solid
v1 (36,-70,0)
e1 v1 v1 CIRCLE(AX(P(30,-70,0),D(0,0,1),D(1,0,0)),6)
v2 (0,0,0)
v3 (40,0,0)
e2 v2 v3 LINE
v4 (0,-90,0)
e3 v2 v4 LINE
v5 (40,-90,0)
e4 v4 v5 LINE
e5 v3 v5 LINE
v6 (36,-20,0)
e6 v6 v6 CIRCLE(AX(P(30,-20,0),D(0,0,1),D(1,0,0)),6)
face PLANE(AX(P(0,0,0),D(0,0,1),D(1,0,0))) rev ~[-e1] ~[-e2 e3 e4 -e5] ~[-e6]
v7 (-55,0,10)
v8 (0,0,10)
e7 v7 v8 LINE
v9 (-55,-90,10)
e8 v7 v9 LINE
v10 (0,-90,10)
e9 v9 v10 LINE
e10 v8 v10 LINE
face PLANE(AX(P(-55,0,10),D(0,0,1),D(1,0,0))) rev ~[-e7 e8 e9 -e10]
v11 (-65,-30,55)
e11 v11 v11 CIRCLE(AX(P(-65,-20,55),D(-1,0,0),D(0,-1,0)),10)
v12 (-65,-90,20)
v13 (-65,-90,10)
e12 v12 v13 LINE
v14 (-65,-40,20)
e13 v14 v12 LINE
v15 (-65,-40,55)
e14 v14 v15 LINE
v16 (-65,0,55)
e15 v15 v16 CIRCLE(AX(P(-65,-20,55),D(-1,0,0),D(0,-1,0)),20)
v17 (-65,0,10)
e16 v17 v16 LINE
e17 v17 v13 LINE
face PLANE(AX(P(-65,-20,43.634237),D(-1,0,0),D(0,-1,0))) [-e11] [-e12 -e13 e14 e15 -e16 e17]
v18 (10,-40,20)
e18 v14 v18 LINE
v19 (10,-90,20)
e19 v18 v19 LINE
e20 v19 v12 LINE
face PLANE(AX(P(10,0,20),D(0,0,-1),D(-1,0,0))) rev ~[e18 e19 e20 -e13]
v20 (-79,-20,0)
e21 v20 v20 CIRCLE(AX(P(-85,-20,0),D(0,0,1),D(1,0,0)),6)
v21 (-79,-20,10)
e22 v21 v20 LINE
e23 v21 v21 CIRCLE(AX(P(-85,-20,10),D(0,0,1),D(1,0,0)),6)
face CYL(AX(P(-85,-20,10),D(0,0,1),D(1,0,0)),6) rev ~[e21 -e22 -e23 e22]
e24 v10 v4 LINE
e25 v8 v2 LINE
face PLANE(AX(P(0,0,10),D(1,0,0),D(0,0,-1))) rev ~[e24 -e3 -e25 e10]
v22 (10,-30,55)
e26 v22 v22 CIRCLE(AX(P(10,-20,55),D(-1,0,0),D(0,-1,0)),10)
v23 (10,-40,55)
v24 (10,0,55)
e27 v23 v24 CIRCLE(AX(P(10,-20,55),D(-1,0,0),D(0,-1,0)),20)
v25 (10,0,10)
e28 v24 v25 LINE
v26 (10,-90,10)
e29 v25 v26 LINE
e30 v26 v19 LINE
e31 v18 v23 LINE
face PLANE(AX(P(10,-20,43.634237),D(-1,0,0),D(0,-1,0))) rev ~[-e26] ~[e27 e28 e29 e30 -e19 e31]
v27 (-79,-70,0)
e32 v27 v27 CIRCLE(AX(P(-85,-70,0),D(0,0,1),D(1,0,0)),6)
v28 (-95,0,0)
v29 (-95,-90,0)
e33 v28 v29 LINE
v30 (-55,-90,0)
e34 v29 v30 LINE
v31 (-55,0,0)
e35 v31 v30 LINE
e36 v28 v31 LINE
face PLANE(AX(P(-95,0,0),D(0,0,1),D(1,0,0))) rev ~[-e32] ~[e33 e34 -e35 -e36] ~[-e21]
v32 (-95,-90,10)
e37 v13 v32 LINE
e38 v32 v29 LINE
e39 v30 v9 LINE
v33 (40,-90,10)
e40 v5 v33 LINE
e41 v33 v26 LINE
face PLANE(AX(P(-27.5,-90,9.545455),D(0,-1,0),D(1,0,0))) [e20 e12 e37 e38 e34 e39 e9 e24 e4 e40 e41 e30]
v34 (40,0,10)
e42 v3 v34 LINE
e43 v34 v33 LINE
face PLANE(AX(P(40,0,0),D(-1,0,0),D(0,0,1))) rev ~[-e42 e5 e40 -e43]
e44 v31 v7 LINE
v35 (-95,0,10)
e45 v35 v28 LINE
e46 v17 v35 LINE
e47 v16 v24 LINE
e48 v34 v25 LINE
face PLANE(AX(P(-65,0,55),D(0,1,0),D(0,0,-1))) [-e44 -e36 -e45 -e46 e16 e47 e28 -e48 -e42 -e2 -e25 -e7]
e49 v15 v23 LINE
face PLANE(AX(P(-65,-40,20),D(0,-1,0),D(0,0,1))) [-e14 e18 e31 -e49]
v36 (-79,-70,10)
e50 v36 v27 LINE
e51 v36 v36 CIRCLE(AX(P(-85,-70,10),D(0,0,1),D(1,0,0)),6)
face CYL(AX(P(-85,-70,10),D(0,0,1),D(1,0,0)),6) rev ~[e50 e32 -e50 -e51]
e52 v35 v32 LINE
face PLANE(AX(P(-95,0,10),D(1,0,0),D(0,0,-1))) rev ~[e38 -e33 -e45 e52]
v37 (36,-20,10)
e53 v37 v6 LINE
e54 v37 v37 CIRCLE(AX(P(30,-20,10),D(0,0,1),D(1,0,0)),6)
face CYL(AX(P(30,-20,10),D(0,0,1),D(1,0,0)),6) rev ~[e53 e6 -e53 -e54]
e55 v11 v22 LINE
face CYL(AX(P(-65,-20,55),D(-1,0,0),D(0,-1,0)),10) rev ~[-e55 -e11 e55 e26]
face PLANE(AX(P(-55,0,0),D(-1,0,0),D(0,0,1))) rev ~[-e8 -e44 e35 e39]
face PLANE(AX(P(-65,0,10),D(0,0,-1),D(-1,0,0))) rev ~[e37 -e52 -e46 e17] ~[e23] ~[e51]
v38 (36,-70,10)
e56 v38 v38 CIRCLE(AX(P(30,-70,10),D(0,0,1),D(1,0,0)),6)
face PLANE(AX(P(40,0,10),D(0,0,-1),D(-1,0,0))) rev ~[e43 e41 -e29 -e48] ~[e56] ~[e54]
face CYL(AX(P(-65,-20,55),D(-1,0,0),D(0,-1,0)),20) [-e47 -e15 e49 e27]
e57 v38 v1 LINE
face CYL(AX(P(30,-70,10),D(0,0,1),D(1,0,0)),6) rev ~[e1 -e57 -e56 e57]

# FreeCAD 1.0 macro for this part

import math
import FreeCAD as App
import Part
import Sketcher

V = App.Vector


def add_polygon(sketch, points):
    """Adds a closed chain of lines whose ends are joined by coincident constraints."""
    first, n = sketch.GeometryCount, len(points)
    for a, b in zip(points, points[1:] + points[:1]):
        sketch.addGeometry(Part.LineSegment(App.Vector(*a, 0), App.Vector(*b, 0)), False)
    for i in range(n):
        sketch.addConstraint(Sketcher.Constraint("Coincident", first + i, 2, first + (i + 1) % n, 1))

doc = App.newDocument("Part")
body = doc.addObject("PartDesign::Body", "Body")

# Sketch on XZ plane
sketch1 = doc.addObject("Sketcher::SketchObject", "Sketch")
body.addObject(sketch1)
sketch1.AttachmentSupport = (doc.XZ_Plane, [""])
sketch1.MapMode = "FlatFace"
add_polygon(sketch1, [(-95, 10), (-95, 0), (-55, 0), (-55, 10), (0, 10), (0, 0), (40, 0), (40, 10), (10, 10), (10, 20), (-65, 20), (-65, 10)])  # lines 0-11
sketch1.addConstraint(Sketcher.Constraint("Vertical", 0))
sketch1.addConstraint(Sketcher.Constraint("Horizontal", 1))
sketch1.addConstraint(Sketcher.Constraint("Vertical", 2))
sketch1.addConstraint(Sketcher.Constraint("Horizontal", 3))
sketch1.addConstraint(Sketcher.Constraint("Vertical", 4))
sketch1.addConstraint(Sketcher.Constraint("Horizontal", 5))
sketch1.addConstraint(Sketcher.Constraint("Vertical", 6))
sketch1.addConstraint(Sketcher.Constraint("Horizontal", 7))
sketch1.addConstraint(Sketcher.Constraint("Vertical", 8))
sketch1.addConstraint(Sketcher.Constraint("Horizontal", 9))
sketch1.addConstraint(Sketcher.Constraint("Vertical", 10))
sketch1.addConstraint(Sketcher.Constraint("Horizontal", 11))
sketch1.addConstraint(Sketcher.Constraint("Coincident", 4, 2, -1, 1))
sketch1.addConstraint(Sketcher.Constraint("PointOnObject", 0, 2, -1))
sketch1.addConstraint(Sketcher.Constraint("Horizontal", 3, 2, 6, 2))
sketch1.addConstraint(Sketcher.Constraint("Horizontal", 7, 2, 10, 2))
sketch1.addConstraint(Sketcher.Constraint("Equal", 1, 5))
sketch1.addConstraint(Sketcher.Constraint("Equal", 7, 11))
sketch1.addConstraint(Sketcher.Constraint("Equal", 6, 8))
sketch1.addConstraint(Sketcher.Constraint("DistanceX", 1, 1, 1, 2, 40.0))
sketch1.addConstraint(Sketcher.Constraint("DistanceX", 3, 1, 3, 2, 55.0))
sketch1.addConstraint(Sketcher.Constraint("DistanceX", 7, 2, 7, 1, 30.0))
sketch1.addConstraint(Sketcher.Constraint("DistanceY", 0, 2, 0, 1, 10.0))
pad1 = doc.addObject("PartDesign::Pad", "Pad")
body.addObject(pad1)
pad1.Profile = sketch1
pad1.Length = 90

# Sketch on XY plane
sketch2 = doc.addObject("Sketcher::SketchObject", "Sketch001")
body.addObject(sketch2)
sketch2.AttachmentSupport = (doc.XY_Plane, [""])
sketch2.MapMode = "FlatFace"
sketch2.AttachmentOffset = App.Placement(V(0, 0, 10), App.Rotation())
sketch2.addGeometry(Part.Circle(V(-85, -70, 0), V(0, 0, 1), 6), False)
sketch2.addConstraint(Sketcher.Constraint("Diameter", 0, 12.0))
sketch2.addConstraint(Sketcher.Constraint("DistanceX", 0, 3, -1, 1, 85.0))
sketch2.addConstraint(Sketcher.Constraint("DistanceY", 0, 3, -1, 1, 70.0))
pocket1 = doc.addObject("PartDesign::Pocket", "Pocket")
body.addObject(pocket1)
pocket1.Profile = sketch2
pocket1.Length = 10

# Sketch on XY plane
sketch3 = doc.addObject("Sketcher::SketchObject", "Sketch002")
body.addObject(sketch3)
sketch3.AttachmentSupport = (doc.XY_Plane, [""])
sketch3.MapMode = "FlatFace"
sketch3.AttachmentOffset = App.Placement(V(0, 0, 10), App.Rotation())
sketch3.addGeometry(Part.Circle(V(30, -70, 0), V(0, 0, 1), 6), False)
sketch3.addConstraint(Sketcher.Constraint("Diameter", 0, 12.0))
sketch3.addConstraint(Sketcher.Constraint("DistanceX", -1, 1, 0, 3, 30.0))
sketch3.addConstraint(Sketcher.Constraint("DistanceY", 0, 3, -1, 1, 70.0))
pocket2 = doc.addObject("PartDesign::Pocket", "Pocket001")
body.addObject(pocket2)
pocket2.Profile = sketch3
pocket2.Length = 10

# Sketch on XY plane
sketch4 = doc.addObject("Sketcher::SketchObject", "Sketch003")
body.addObject(sketch4)
sketch4.AttachmentSupport = (doc.XY_Plane, [""])
sketch4.MapMode = "FlatFace"
sketch4.AttachmentOffset = App.Placement(V(0, 0, 10), App.Rotation())
sketch4.addGeometry(Part.Circle(V(-85, -20, 0), V(0, 0, 1), 6), False)
sketch4.addConstraint(Sketcher.Constraint("Diameter", 0, 12.0))
sketch4.addConstraint(Sketcher.Constraint("DistanceX", 0, 3, -1, 1, 85.0))
sketch4.addConstraint(Sketcher.Constraint("DistanceY", 0, 3, -1, 1, 20.0))
pocket3 = doc.addObject("PartDesign::Pocket", "Pocket002")
body.addObject(pocket3)
pocket3.Profile = sketch4
pocket3.Length = 10

# Sketch on XY plane
sketch5 = doc.addObject("Sketcher::SketchObject", "Sketch004")
body.addObject(sketch5)
sketch5.AttachmentSupport = (doc.XY_Plane, [""])
sketch5.MapMode = "FlatFace"
sketch5.AttachmentOffset = App.Placement(V(0, 0, 10), App.Rotation())
sketch5.addGeometry(Part.Circle(V(30, -20, 0), V(0, 0, 1), 6), False)
sketch5.addConstraint(Sketcher.Constraint("Diameter", 0, 12.0))
sketch5.addConstraint(Sketcher.Constraint("DistanceX", -1, 1, 0, 3, 30.0))
sketch5.addConstraint(Sketcher.Constraint("DistanceY", 0, 3, -1, 1, 20.0))
pocket4 = doc.addObject("PartDesign::Pocket", "Pocket003")
body.addObject(pocket4)
pocket4.Profile = sketch5
pocket4.Length = 10

# Sketch on YZ plane
sketch6 = doc.addObject("Sketcher::SketchObject", "Sketch005")
body.addObject(sketch6)
sketch6.AttachmentSupport = (doc.YZ_Plane, [""])
sketch6.MapMode = "FlatFace"
sketch6.AttachmentOffset = App.Placement(V(0, 0, -65), App.Rotation())
sketch6.addGeometry(Part.LineSegment(V(0, 55, 0), V(0, 20, 0)), False)
sketch6.addGeometry(Part.LineSegment(V(0, 20, 0), V(-40, 20, 0)), False)
sketch6.addGeometry(Part.LineSegment(V(-40, 20, 0), V(-40, 55, 0)), False)
sketch6.addGeometry(Part.ArcOfCircle(Part.Circle(V(-20, 55, 0), V(0, 0, 1), 20), math.radians(0), math.radians(180)), False)
sketch6.addGeometry(Part.Circle(V(-20, 55, 0), V(0, 0, 1), 10), False)
sketch6.addConstraint(Sketcher.Constraint("Coincident", 0, 2, 1, 1))
sketch6.addConstraint(Sketcher.Constraint("Coincident", 1, 2, 2, 1))
sketch6.addConstraint(Sketcher.Constraint("Tangent", 2, 2, 3, 2))
sketch6.addConstraint(Sketcher.Constraint("Tangent", 3, 1, 0, 1))
sketch6.addConstraint(Sketcher.Constraint("Vertical", 0))
sketch6.addConstraint(Sketcher.Constraint("Horizontal", 1))
sketch6.addConstraint(Sketcher.Constraint("Vertical", 2))
sketch6.addConstraint(Sketcher.Constraint("Coincident", 4, 3, 3, 3))
sketch6.addConstraint(Sketcher.Constraint("PointOnObject", 0, 2, -2))
sketch6.addConstraint(Sketcher.Constraint("Diameter", 4, 20.0))
sketch6.addConstraint(Sketcher.Constraint("Radius", 3, 20.0))
sketch6.addConstraint(Sketcher.Constraint("DistanceY", 0, 2, 0, 1, 35.0))
sketch6.addConstraint(Sketcher.Constraint("DistanceY", -1, 1, 3, 3, 55.0))
pad2 = doc.addObject("PartDesign::Pad", "Pad001")
body.addObject(pad2)
pad2.Profile = sketch6
pad2.Length = 75

doc.recompute()
